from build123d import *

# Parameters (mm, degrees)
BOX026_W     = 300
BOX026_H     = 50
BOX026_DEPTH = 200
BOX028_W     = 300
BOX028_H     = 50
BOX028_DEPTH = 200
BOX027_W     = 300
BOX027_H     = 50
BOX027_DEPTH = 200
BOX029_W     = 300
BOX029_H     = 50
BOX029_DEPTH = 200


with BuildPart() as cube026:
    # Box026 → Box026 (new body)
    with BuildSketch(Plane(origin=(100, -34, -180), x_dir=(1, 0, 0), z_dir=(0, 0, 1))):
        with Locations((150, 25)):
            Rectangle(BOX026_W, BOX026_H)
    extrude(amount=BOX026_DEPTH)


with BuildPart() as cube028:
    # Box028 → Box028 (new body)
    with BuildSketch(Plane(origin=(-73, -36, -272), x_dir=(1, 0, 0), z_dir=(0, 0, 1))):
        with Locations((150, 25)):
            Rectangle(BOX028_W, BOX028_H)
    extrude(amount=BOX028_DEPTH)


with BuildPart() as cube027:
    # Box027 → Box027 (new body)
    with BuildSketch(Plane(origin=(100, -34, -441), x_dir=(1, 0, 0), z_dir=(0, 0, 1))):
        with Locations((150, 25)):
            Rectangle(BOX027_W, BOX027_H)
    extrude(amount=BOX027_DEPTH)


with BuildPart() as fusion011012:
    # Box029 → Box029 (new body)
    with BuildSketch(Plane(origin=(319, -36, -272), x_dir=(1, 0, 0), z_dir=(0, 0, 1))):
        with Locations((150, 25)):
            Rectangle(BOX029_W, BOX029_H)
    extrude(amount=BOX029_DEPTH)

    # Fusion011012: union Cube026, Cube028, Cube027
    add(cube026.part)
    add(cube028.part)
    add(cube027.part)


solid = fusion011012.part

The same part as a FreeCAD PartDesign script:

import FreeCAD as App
import Part
import Sketcher
from FreeCAD import Vector
Q = App.Units.Quantity

doc = App.newDocument("Part")
body = doc.addObject("PartDesign::Body", "Body")

sketch1 = body.newObject("Sketcher::SketchObject", "Sketch")
sketch1.AttachmentSupport = (doc.getObject("XY_Plane"), [""])
sketch1.MapMode = "FlatFace"
sketch1.AttachmentOffset = App.Placement(Vector(0, 0, -180), App.Rotation())
sketch1.addGeometry([
    Part.LineSegment(Vector(100, 16, 0), Vector(100, -34, 0)),
    Part.LineSegment(Vector(100, -34, 0), Vector(400, -34, 0)),
    Part.LineSegment(Vector(400, -34, 0), Vector(400, 16, 0)),
    Part.LineSegment(Vector(400, 16, 0), Vector(100, 16, 0)),
], False)
sketch1.addConstraint([
    Sketcher.Constraint("Coincident", 0, 2, 1, 1),
    Sketcher.Constraint("Coincident", 1, 2, 2, 1),
    Sketcher.Constraint("Coincident", 2, 2, 3, 1),
    Sketcher.Constraint("Coincident", 3, 2, 0, 1),
    Sketcher.Constraint("Vertical", 0),
    Sketcher.Constraint("Horizontal", 1),
    Sketcher.Constraint("Vertical", 2),
    Sketcher.Constraint("Horizontal", 3),
    Sketcher.Constraint("DistanceX", 1, 1, 1, 2, Q("300 mm")),
    Sketcher.Constraint("DistanceY", 0, 2, 0, 1, Q("50 mm")),
    Sketcher.Constraint("DistanceX", -1, 1, 0, 2, Q("100 mm")),
    Sketcher.Constraint("DistanceY", 0, 2, -1, 1, Q("34 mm")),
])
pad1 = body.newObject("PartDesign::Pad", "Pad")
pad1.Profile = sketch1
pad1.Length = 200
body2 = doc.addObject("PartDesign::Body", "Body001")

sketch2 = body2.newObject("Sketcher::SketchObject", "Sketch001")
sketch2.AttachmentSupport = (doc.getObject("XY_Plane001"), [""])
sketch2.MapMode = "FlatFace"
sketch2.AttachmentOffset = App.Placement(Vector(0, 0, -272), App.Rotation())
sketch2.addGeometry([
    Part.LineSegment(Vector(-73, 14, 0), Vector(-73, -36, 0)),
    Part.LineSegment(Vector(-73, -36, 0), Vector(227, -36, 0)),
    Part.LineSegment(Vector(227, -36, 0), Vector(227, 14, 0)),
    Part.LineSegment(Vector(227, 14, 0), Vector(-73, 14, 0)),
], False)
sketch2.addConstraint([
    Sketcher.Constraint("Coincident", 0, 2, 1, 1),
    Sketcher.Constraint("Coincident", 1, 2, 2, 1),
    Sketcher.Constraint("Coincident", 2, 2, 3, 1),
    Sketcher.Constraint("Coincident", 3, 2, 0, 1),
    Sketcher.Constraint("Vertical", 0),
    Sketcher.Constraint("Horizontal", 1),
    Sketcher.Constraint("Vertical", 2),
    Sketcher.Constraint("Horizontal", 3),
    Sketcher.Constraint("DistanceX", 1, 1, 1, 2, Q("300 mm")),
    Sketcher.Constraint("DistanceY", 0, 2, 0, 1, Q("50 mm")),
    Sketcher.Constraint("DistanceX", 0, 2, -1, 1, Q("73 mm")),
    Sketcher.Constraint("DistanceY", 0, 2, -1, 1, Q("36 mm")),
])
pad2 = body2.newObject("PartDesign::Pad", "Pad001")
pad2.Profile = sketch2
pad2.Length = 200
body3 = doc.addObject("PartDesign::Body", "Body002")

sketch3 = body3.newObject("Sketcher::SketchObject", "Sketch002")
sketch3.AttachmentSupport = (doc.getObject("XY_Plane002"), [""])
sketch3.MapMode = "FlatFace"
sketch3.AttachmentOffset = App.Placement(Vector(0, 0, -441), App.Rotation())
sketch3.addGeometry([
    Part.LineSegment(Vector(100, 16, 0), Vector(100, -34, 0)),
    Part.LineSegment(Vector(100, -34, 0), Vector(400, -34, 0)),
    Part.LineSegment(Vector(400, -34, 0), Vector(400, 16, 0)),
    Part.LineSegment(Vector(400, 16, 0), Vector(100, 16, 0)),
], False)
sketch3.addConstraint([
    Sketcher.Constraint("Coincident", 0, 2, 1, 1),
    Sketcher.Constraint("Coincident", 1, 2, 2, 1),
    Sketcher.Constraint("Coincident", 2, 2, 3, 1),
    Sketcher.Constraint("Coincident", 3, 2, 0, 1),
    Sketcher.Constraint("Vertical", 0),
    Sketcher.Constraint("Horizontal", 1),
    Sketcher.Constraint("Vertical", 2),
    Sketcher.Constraint("Horizontal", 3),
    Sketcher.Constraint("DistanceX", 1, 1, 1, 2, Q("300 mm")),
    Sketcher.Constraint("DistanceY", 0, 2, 0, 1, Q("50 mm")),
    Sketcher.Constraint("DistanceX", -1, 1, 0, 2, Q("100 mm")),
    Sketcher.Constraint("DistanceY", 0, 2, -1, 1, Q("34 mm")),
])
pad3 = body3.newObject("PartDesign::Pad", "Pad002")
pad3.Profile = sketch3
pad3.Length = 200
body4 = doc.addObject("PartDesign::Body", "Body003")

sketch4 = body4.newObject("Sketcher::SketchObject", "Sketch003")
sketch4.AttachmentSupport = (doc.getObject("XY_Plane003"), [""])
sketch4.MapMode = "FlatFace"
sketch4.AttachmentOffset = App.Placement(Vector(0, 0, -272), App.Rotation())
sketch4.addGeometry([
    Part.LineSegment(Vector(319, 14, 0), Vector(319, -36, 0)),
    Part.LineSegment(Vector(319, -36, 0), Vector(619, -36, 0)),
    Part.LineSegment(Vector(619, -36, 0), Vector(619, 14, 0)),
    Part.LineSegment(Vector(619, 14, 0), Vector(319, 14, 0)),
], False)
sketch4.addConstraint([
    Sketcher.Constraint("Coincident", 0, 2, 1, 1),
    Sketcher.Constraint("Coincident", 1, 2, 2, 1),
    Sketcher.Constraint("Coincident", 2, 2, 3, 1),
    Sketcher.Constraint("Coincident", 3, 2, 0, 1),
    Sketcher.Constraint("Vertical", 0),
    Sketcher.Constraint("Horizontal", 1),
    Sketcher.Constraint("Vertical", 2),
    Sketcher.Constraint("Horizontal", 3),
    Sketcher.Constraint("DistanceX", 1, 1, 1, 2, Q("300 mm")),
    Sketcher.Constraint("DistanceY", 0, 2, 0, 1, Q("50 mm")),
    Sketcher.Constraint("DistanceX", -1, 1, 0, 2, Q("319 mm")),
    Sketcher.Constraint("DistanceY", 0, 2, -1, 1, Q("36 mm")),
])
pad4 = body4.newObject("PartDesign::Pad", "Pad003")
pad4.Profile = sketch4
pad4.Length = 200
doc.recompute()

boolean = body4.newObject("PartDesign::Boolean", "Boolean")
boolean.Type = "Fuse"
boolean.addObjects([body])
doc.recompute()

boolean2 = body4.newObject("PartDesign::Boolean", "Boolean001")
boolean2.Type = "Fuse"
boolean2.addObjects([body2])
doc.recompute()

boolean3 = body4.newObject("PartDesign::Boolean", "Boolean002")
boolean3.Type = "Fuse"
boolean3.addObjects([body3])

doc.recompute()
